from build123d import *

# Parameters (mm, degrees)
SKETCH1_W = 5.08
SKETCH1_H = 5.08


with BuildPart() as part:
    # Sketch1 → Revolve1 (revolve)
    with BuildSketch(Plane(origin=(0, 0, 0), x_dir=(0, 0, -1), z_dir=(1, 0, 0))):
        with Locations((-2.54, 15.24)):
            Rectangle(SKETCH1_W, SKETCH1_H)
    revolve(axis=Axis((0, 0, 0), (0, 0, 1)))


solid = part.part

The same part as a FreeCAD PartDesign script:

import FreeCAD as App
import Part
import Sketcher

V = App.Vector
Q = App.Units.Quantity

doc = App.newDocument("Part")
params = doc.addObject("Spreadsheet::Sheet", "Params")
for row, (alias, value) in enumerate([
    ("sketch1_width", "0.2 in"),
    ("revolution_angle", "360 deg"),
], start=1):
    params.set(f"A{row}", alias)
    params.set(f"B{row}", "=" + value)
    params.setAlias(f"B{row}", alias)

body = doc.addObject("PartDesign::Body", "Body")

sketch1 = body.newObject("Sketcher::SketchObject", "Sketch")
sketch1.AttachmentSupport = (doc.getObject("YZ_Plane"), [""])
sketch1.MapMode = "FlatFace"
sketch1.addGeometry([
    Part.LineSegment(V(18, 5, 0), V(13, 5, 0)),
    Part.LineSegment(V(13, 5, 0), V(13, 0, 0)),
    Part.LineSegment(V(13, 0, 0), V(18, 0, 0)),
    Part.LineSegment(V(18, 0, 0), V(18, 5, 0)),
], False)
sketch1.addConstraint([
    Sketcher.Constraint("Coincident", 0, 2, 1, 1),
    Sketcher.Constraint("Coincident", 1, 2, 2, 1),
    Sketcher.Constraint("Coincident", 2, 2, 3, 1),
    Sketcher.Constraint("Coincident", 3, 2, 0, 1),
    Sketcher.Constraint("Horizontal", 0),
    Sketcher.Constraint("Vertical", 1),
    Sketcher.Constraint("Horizontal", 2),
    Sketcher.Constraint("Vertical", 3),
    Sketcher.Constraint("PointOnObject", 1, 2, -1),
    Sketcher.Constraint("Equal", 2, 1),
    Sketcher.Constraint("DistanceX", 0, 2, 0, 1, Q("0.2 in")),
    Sketcher.Constraint("DistanceX", -1, 1, 0, 2, Q("0.5 in")),
])
sketch1.setExpression("Constraints[10]", "Params.sketch1_width")
revolution = body.newObject("PartDesign::Revolution", "Revolution")
revolution.Profile = sketch1
revolution.ReferenceAxis = (sketch1, ["V_Axis"])
revolution.setExpression("Angle", "Params.revolution_angle")

doc.recompute()
